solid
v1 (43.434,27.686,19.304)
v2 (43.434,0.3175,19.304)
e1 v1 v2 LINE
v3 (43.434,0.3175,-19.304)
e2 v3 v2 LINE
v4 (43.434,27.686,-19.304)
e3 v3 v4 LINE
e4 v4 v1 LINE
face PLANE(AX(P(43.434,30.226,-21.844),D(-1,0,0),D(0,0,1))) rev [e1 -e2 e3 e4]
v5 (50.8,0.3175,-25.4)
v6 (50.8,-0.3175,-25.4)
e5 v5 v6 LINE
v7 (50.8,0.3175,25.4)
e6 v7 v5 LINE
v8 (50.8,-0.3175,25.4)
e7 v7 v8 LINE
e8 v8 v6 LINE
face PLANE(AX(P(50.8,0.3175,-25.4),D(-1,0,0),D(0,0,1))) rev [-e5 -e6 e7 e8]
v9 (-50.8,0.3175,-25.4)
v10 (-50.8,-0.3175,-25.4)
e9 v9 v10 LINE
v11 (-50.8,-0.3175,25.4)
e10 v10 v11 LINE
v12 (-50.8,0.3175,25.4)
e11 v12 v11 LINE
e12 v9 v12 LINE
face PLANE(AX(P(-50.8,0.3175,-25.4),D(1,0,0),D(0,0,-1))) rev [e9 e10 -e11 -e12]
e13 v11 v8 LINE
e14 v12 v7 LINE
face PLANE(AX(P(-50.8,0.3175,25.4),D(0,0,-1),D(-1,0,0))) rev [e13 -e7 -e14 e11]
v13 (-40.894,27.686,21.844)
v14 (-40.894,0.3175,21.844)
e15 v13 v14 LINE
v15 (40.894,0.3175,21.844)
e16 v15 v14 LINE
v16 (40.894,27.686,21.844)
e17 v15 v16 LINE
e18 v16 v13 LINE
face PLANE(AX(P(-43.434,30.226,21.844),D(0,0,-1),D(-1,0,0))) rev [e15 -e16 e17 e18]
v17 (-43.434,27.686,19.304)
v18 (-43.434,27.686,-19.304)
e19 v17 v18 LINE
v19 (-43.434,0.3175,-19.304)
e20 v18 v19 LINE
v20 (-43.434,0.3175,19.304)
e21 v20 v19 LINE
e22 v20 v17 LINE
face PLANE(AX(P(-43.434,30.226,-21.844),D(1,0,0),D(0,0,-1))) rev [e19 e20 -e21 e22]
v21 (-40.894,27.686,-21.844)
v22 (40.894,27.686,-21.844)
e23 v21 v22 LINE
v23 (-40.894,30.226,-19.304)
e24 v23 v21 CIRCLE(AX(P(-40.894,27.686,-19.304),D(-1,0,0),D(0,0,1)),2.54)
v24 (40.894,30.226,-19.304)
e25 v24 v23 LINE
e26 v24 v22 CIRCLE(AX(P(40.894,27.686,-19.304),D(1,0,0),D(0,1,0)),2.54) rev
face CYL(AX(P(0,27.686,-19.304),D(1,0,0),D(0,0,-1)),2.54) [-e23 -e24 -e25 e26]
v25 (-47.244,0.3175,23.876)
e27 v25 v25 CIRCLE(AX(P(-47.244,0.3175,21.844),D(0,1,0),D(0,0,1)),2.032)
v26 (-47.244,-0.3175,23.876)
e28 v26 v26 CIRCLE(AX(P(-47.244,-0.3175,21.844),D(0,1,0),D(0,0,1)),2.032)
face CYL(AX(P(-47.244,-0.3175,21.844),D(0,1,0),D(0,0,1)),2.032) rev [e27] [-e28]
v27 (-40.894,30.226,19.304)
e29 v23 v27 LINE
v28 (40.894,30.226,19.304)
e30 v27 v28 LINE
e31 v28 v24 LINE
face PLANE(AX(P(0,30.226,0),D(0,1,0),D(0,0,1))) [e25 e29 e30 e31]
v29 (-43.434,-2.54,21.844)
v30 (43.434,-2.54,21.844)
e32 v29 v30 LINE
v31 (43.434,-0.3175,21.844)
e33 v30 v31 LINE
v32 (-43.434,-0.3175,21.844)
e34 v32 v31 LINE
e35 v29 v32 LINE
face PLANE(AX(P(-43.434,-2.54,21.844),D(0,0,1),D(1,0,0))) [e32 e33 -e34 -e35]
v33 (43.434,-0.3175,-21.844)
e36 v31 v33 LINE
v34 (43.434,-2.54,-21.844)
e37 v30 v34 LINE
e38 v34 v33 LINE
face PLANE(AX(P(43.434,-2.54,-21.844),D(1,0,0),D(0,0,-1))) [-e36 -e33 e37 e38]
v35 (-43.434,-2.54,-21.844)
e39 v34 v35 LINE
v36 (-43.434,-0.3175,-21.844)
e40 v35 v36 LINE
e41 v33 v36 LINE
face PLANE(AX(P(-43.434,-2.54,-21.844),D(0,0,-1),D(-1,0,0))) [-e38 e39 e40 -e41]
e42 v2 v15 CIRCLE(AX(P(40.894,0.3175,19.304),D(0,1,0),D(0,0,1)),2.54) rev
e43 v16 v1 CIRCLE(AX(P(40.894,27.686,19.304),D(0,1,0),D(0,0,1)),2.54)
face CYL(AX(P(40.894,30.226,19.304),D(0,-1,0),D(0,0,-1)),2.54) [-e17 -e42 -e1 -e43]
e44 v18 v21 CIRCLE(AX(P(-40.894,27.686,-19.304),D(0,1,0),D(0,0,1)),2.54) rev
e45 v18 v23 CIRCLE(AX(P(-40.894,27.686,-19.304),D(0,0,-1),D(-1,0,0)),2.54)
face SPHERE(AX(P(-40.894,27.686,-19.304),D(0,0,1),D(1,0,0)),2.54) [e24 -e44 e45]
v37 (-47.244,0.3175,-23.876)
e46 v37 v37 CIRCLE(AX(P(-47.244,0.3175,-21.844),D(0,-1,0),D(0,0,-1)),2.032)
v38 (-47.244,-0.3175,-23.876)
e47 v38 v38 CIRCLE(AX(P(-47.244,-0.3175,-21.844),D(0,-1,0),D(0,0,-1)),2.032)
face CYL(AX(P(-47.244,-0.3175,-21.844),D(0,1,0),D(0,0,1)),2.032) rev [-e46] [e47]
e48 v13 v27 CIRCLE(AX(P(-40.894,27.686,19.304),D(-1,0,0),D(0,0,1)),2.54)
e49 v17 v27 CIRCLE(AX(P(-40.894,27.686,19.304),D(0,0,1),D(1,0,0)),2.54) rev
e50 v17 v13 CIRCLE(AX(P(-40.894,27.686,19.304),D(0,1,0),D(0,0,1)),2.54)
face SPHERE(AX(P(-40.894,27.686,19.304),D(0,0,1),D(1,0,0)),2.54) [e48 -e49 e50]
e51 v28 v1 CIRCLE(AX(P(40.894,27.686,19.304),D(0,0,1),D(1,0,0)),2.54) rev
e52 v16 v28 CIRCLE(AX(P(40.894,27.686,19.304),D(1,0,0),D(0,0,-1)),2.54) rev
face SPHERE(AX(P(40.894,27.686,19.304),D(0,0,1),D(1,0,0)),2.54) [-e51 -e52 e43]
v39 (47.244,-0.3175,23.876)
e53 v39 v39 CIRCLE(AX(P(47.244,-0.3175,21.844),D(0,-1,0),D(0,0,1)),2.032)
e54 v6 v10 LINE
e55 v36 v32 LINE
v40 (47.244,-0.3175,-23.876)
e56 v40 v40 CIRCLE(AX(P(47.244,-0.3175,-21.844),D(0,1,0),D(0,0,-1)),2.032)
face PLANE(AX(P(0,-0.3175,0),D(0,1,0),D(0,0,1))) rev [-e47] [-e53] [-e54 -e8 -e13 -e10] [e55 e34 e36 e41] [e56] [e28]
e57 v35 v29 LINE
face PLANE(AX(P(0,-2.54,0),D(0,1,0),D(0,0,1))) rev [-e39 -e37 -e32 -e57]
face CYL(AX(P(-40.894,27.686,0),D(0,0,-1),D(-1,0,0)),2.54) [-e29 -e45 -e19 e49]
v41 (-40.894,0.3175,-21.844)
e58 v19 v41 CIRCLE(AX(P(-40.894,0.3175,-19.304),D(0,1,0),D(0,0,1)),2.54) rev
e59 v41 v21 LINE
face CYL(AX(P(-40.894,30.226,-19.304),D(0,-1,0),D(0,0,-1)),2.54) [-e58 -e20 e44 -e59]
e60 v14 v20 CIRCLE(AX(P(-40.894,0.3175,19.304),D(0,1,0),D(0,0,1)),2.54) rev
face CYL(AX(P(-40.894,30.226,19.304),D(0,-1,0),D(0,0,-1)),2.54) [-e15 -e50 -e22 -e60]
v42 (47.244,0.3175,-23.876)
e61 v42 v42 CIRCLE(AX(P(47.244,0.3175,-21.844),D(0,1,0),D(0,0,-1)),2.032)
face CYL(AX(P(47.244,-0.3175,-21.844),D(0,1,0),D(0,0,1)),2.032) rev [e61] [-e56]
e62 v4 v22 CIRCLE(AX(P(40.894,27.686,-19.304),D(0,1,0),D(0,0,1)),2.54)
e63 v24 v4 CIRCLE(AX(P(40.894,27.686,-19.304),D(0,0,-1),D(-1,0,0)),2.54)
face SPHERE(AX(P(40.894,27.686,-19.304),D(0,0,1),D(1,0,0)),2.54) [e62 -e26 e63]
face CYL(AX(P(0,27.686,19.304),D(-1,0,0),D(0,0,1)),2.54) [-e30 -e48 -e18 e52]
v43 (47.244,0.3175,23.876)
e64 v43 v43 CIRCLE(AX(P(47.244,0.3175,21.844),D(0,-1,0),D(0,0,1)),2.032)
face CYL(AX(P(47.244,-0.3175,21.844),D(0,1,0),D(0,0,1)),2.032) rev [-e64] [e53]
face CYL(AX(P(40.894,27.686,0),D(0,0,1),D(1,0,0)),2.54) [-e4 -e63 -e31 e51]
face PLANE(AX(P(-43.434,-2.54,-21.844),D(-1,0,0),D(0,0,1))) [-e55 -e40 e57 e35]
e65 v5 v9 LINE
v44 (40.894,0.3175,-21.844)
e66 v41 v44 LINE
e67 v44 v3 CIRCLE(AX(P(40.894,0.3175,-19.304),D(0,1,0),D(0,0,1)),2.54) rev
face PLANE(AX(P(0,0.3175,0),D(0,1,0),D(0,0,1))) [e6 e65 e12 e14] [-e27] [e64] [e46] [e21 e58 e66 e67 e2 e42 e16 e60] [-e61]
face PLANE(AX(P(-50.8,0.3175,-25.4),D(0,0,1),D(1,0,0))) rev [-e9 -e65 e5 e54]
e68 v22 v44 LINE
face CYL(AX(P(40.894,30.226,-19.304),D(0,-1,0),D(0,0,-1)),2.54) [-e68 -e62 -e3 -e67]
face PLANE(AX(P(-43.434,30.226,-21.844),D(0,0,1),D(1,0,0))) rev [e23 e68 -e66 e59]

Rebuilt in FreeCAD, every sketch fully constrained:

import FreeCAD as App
import Part
import Sketcher

V = App.Vector
Q = App.Units.Quantity


def edges_at(feature, points):
    """Names of the edges that pass closest to the given points."""
    edges = feature.Shape.Edges
    near = lambda p: min(range(len(edges)), key=lambda i: edges[i].distToShape(Part.Vertex(*p))[0])
    return sorted({f"Edge{near(p) + 1}" for p in points})


def add_polygon(sketch, points):
    """Adds a closed chain of lines whose ends are joined by coincident constraints."""
    first, n = sketch.GeometryCount, len(points)
    for a, b in zip(points, points[1:] + points[:1]):
        sketch.addGeometry(Part.LineSegment(App.Vector(*a, 0), App.Vector(*b, 0)), False)
    for i in range(n):
        sketch.addConstraint(Sketcher.Constraint("Coincident", first + i, 2, first + (i + 1) % n, 1))

doc = App.newDocument("Part")
params = doc.addObject("Spreadsheet::Sheet", "Params")
for row, (alias, value) in enumerate([
    ("sketch1_width", "4 in"),
    ("sketch1_height", "2 in"),
    ("pad1_length", "0.025 in"),
    ("sketch2_diameter", "0.16 in"),
    ("sketch3_diameter", "0.16 in"),
    ("sketch4_width", "3.42 in"),
    ("sketch4_height", "1.72 in"),
    ("pad2_length", "0.1 in"),
    ("sketch5_width", "3.42 in"),
    ("sketch5_height", "1.72 in"),
    ("pad3_length", "1.19 in"),
    ("fillet_radius", "0.1 in"),
], start=1):
    params.set(f"A{row}", alias)
    params.set(f"B{row}", "=" + value)
    params.setAlias(f"B{row}", alias)

body = doc.addObject("PartDesign::Body", "Body")

# Sketch on XZ plane
sketch1 = body.newObject("Sketcher::SketchObject", "Sketch")
sketch1.AttachmentSupport = (doc.getObject("XZ_Plane"), [""])
sketch1.MapMode = "FlatFace"
add_polygon(sketch1, [(-51, -25), (-51, 25), (51, 25), (51, -25)])  # lines 0-3
sketch1.addConstraint([
    Sketcher.Constraint("Vertical", 0),
    Sketcher.Constraint("Horizontal", 1),
    Sketcher.Constraint("Vertical", 2),
    Sketcher.Constraint("Horizontal", 3),
    Sketcher.Constraint("Symmetric", 0, 2, 2, 2, -1, 1),
    Sketcher.Constraint("DistanceX", 1, 1, 1, 2, Q("4 in")),
    Sketcher.Constraint("DistanceY", 0, 1, 0, 2, Q("2 in")),
])
sketch1.setExpression("Constraints[9]", "Params.sketch1_width")
sketch1.setExpression("Constraints[10]", "Params.sketch1_height")
pad1 = body.newObject("PartDesign::Pad", "Pad")
pad1.Profile = sketch1
pad1.setExpression("Length", "Params.pad1_length")
pad1.Midplane = True

# Sketch on XZ plane
sketch2 = body.newObject("Sketcher::SketchObject", "Sketch001")
sketch2.AttachmentSupport = (doc.getObject("XZ_Plane"), [""])
sketch2.MapMode = "FlatFace"
sketch2.AttachmentOffset = App.Placement(V(0, 0, -0.0125 * 25.4), App.Rotation())
sketch2.addGeometry(Part.Circle(V(-47.2, 21.8, 0), V(0, 0, 1), 2), False)
sketch2.addConstraint([
    Sketcher.Constraint("Diameter", 0, Q("0.16 in")),
    Sketcher.Constraint("DistanceX", 0, 3, -1, 1, Q("1.86 in")),
    Sketcher.Constraint("DistanceY", -1, 1, 0, 3, Q("0.86 in")),
])
sketch2.setExpression("Constraints[0]", "Params.sketch2_diameter")
pocket1 = body.newObject("PartDesign::Pocket", "Pocket")
pocket1.Profile = sketch2
pocket1.Type = "ThroughAll"
pocket1.Reversed = True
doc.recompute()

mirrored = body.newObject("PartDesign::Mirrored", "Mirrored")
mirrored.Originals = [pocket1]
mirrored.MirrorPlane = (doc.getObject("XY_Plane"), [""])
body.Tip = mirrored
doc.recompute()

mirrored2 = body.newObject("PartDesign::Mirrored", "Mirrored001")
mirrored2.Originals = [pocket1]
mirrored2.MirrorPlane = (doc.getObject("YZ_Plane"), [""])
body.Tip = mirrored2

# Sketch on XZ plane
sketch3 = body.newObject("Sketcher::SketchObject", "Sketch002")
sketch3.AttachmentSupport = (doc.getObject("XZ_Plane"), [""])
sketch3.MapMode = "FlatFace"
sketch3.AttachmentOffset = App.Placement(V(0, 0, -0.0125 * 25.4), App.Rotation())
sketch3.addGeometry(Part.Circle(V(47.2, -21.8, 0), V(0, 0, 1), 2), False)
sketch3.addConstraint([
    Sketcher.Constraint("Diameter", 0, Q("0.16 in")),
    Sketcher.Constraint("DistanceX", -1, 1, 0, 3, Q("1.86 in")),
    Sketcher.Constraint("DistanceY", 0, 3, -1, 1, Q("0.86 in")),
])
sketch3.setExpression("Constraints[0]", "Params.sketch3_diameter")
pocket2 = body.newObject("PartDesign::Pocket", "Pocket001")
pocket2.Profile = sketch3
pocket2.Type = "ThroughAll"
pocket2.Reversed = True

# Sketch on XZ plane
sketch4 = body.newObject("Sketcher::SketchObject", "Sketch003")
sketch4.AttachmentSupport = (doc.getObject("XZ_Plane"), [""])
sketch4.MapMode = "FlatFace"
add_polygon(sketch4, [(-43, -22), (-43, 22), (43, 22), (43, -22)])  # lines 0-3
sketch4.addConstraint([
    Sketcher.Constraint("Vertical", 0),
    Sketcher.Constraint("Horizontal", 1),
    Sketcher.Constraint("Vertical", 2),
    Sketcher.Constraint("Horizontal", 3),
    Sketcher.Constraint("Symmetric", 0, 2, 2, 2, -1, 1),
    Sketcher.Constraint("DistanceX", 1, 1, 1, 2, Q("3.42 in")),
    Sketcher.Constraint("DistanceY", 0, 1, 0, 2, Q("1.72 in")),
])
sketch4.setExpression("Constraints[9]", "Params.sketch4_width")
sketch4.setExpression("Constraints[10]", "Params.sketch4_height")
pad2 = body.newObject("PartDesign::Pad", "Pad001")
pad2.Profile = sketch4
pad2.setExpression("Length", "Params.pad2_length")

# Sketch on XZ plane
sketch5 = body.newObject("Sketcher::SketchObject", "Sketch004")
sketch5.AttachmentSupport = (doc.getObject("XZ_Plane"), [""])
sketch5.MapMode = "FlatFace"
add_polygon(sketch5, [(-43, -22), (-43, 22), (43, 22), (43, -22)])  # lines 0-3
sketch5.addConstraint([
    Sketcher.Constraint("Vertical", 0),
    Sketcher.Constraint("Horizontal", 1),
    Sketcher.Constraint("Vertical", 2),
    Sketcher.Constraint("Horizontal", 3),
    Sketcher.Constraint("Symmetric", 0, 2, 2, 2, -1, 1),
    Sketcher.Constraint("DistanceX", 1, 1, 1, 2, Q("3.42 in")),
    Sketcher.Constraint("DistanceY", 0, 1, 0, 2, Q("1.72 in")),
])
sketch5.setExpression("Constraints[9]", "Params.sketch5_width")
sketch5.setExpression("Constraints[10]", "Params.sketch5_height")
pad3 = body.newObject("PartDesign::Pad", "Pad002")
pad3.Profile = sketch5
pad3.setExpression("Length", "Params.pad3_length")
pad3.Reversed = True
doc.recompute()

fillet = body.newObject("PartDesign::Fillet", "Fillet")
fillet.Base = (pad3, edges_at(pad3, [
    (43.434, 15.272, 21.844),
    (43.434, 15.272, -21.844),
    (-43.434, 15.272, -21.844),
    (-43.434, 15.272, 21.844),
    (43.434, 30.226, 0),
    (0, 30.226, -21.844),
    (-43.434, 30.226, 0),
    (0, 30.226, 21.844),
]))
fillet.setExpression("Radius", "Params.fillet_radius")

doc.recompute()
